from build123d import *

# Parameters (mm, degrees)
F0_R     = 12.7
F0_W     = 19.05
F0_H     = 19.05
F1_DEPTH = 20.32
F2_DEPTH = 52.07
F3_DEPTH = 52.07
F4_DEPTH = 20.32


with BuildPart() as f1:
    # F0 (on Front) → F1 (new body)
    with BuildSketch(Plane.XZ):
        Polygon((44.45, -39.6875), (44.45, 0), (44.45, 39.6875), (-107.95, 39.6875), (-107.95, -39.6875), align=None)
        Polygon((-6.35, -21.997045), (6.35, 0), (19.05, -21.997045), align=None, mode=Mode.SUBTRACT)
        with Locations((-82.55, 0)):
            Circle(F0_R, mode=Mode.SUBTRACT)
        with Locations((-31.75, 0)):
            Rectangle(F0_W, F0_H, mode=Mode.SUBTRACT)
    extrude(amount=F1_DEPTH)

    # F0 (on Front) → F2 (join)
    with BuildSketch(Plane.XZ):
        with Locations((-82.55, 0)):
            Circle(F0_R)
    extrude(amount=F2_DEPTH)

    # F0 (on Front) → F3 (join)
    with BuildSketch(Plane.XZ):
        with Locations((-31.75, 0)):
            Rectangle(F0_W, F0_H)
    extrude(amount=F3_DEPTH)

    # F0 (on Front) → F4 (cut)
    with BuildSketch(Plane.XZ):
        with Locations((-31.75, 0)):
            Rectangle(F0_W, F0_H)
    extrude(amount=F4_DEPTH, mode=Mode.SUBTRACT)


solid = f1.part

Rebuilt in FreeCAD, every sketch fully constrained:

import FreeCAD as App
import Part
import Sketcher
from FreeCAD import Vector
Q = App.Units.Quantity


def add_polygon(sketch, points):
    """Adds a closed chain of lines whose ends are joined by coincident constraints."""
    first, n = sketch.GeometryCount, len(points)
    for a, b in zip(points, points[1:] + points[:1]):
        sketch.addGeometry(Part.LineSegment(App.Vector(*a, 0), App.Vector(*b, 0)), False)
    for i in range(n):
        sketch.addConstraint(Sketcher.Constraint("Coincident", first + i, 2, first + (i + 1) % n, 1))

doc = App.newDocument("Part")
params = doc.addObject("Spreadsheet::Sheet", "Params")
for row, (alias, value) in enumerate([
    ("sketch1_diameter", "1 in"),
    ("sketch1_width", "6 in"),
    ("sketch1_width2", "1 in"),
    ("sketch1_length", "1 in"),
    ("sketch1_width3", "0.75 in"),
    ("pad1_length", "0.8 in"),
    ("sketch2_diameter", "1 in"),
    ("pad2_length", "2.05 in"),
    ("sketch3_width", "0.75 in"),
    ("pad3_length", "2.05 in"),
    ("sketch4_width", "0.75 in"),
    ("pocket1_length", "0.8 in"),
], start=1):
    params.set(f"A{row}", alias)
    params.set(f"B{row}", "=" + value)
    params.setAlias(f"B{row}", alias)

body = doc.addObject("PartDesign::Body", "Body")
body.AllowCompound = True

# Sketch on XZ plane
sketch1 = body.newObject("Sketcher::SketchObject", "Sketch")
sketch1.AttachmentSupport = (doc.getObject("XZ_Plane"), [""])
sketch1.MapMode = "FlatFace"
add_polygon(sketch1, [(44, -40), (44, 40), (-108, 40), (-108, -40)])  # lines 0-3
add_polygon(sketch1, [(19, -22), (-6, -22), (6, 0)])  # lines 4-6
sketch1.addGeometry(Part.Circle(Vector(-83, 0, 0), Vector(0, 0, 1), 13), False)  # 7
add_polygon(sketch1, [(-22, -10), (-41, -10), (-41, 10), (-22, 10)])  # lines 8-11
sketch1.addConstraint([
    Sketcher.Constraint("Vertical", 0),
    Sketcher.Constraint("Horizontal", 1),
    Sketcher.Constraint("Vertical", 2),
    Sketcher.Constraint("Horizontal", 3),
    Sketcher.Constraint("Horizontal", 4),
    Sketcher.Constraint("Horizontal", 8),
    Sketcher.Constraint("Vertical", 9),
    Sketcher.Constraint("Horizontal", 10),
    Sketcher.Constraint("Vertical", 11),
    Sketcher.Constraint("PointOnObject", 7, 3, -1),
    Sketcher.Constraint("PointOnObject", 5, 2, -1),
    Sketcher.Constraint("Equal", 10, 9),
    Sketcher.Constraint("Equal", 5, 6),
    Sketcher.Constraint("Diameter", 7, Q("1 in")),
    Sketcher.Constraint("DistanceX", 1, 2, 1, 1, Q("6 in")),
    Sketcher.Constraint("DistanceX", 4, 2, 4, 1, Q("1 in")),
    Sketcher.Constraint("Distance", 5, Q("1 in")),
    Sketcher.Constraint("DistanceX", 7, 3, 0, 2, Q("5 in")),
    Sketcher.Constraint("DistanceX", 4, 2, 3, 2, Q("2 in")),
    Sketcher.Constraint("DistanceX", 8, 2, 8, 1, Q("0.75 in")),
    Sketcher.Constraint("DistanceY", 0, 1, 0, 2, Q("3.125 in")),
    Sketcher.Constraint("DistanceX", 7, 3, -1, 1, Q("3.25 in")),
    Sketcher.Constraint("DistanceY", -1, 1, 0, 2, Q("1.5625 in")),
    Sketcher.Constraint("DistanceX", 8, 2, -1, 1, Q("1.625 in")),
    Sketcher.Constraint("DistanceY", 8, 2, -1, 1, Q("0.375 in")),
])
sketch1.setExpression("Constraints[24]", "Params.sketch1_diameter")
sketch1.setExpression("Constraints[25]", "Params.sketch1_width")
sketch1.setExpression("Constraints[26]", "Params.sketch1_width2")
sketch1.setExpression("Constraints[27]", "Params.sketch1_length")
sketch1.setExpression("Constraints[30]", "Params.sketch1_width3")
pad1 = body.newObject("PartDesign::Pad", "Pad")
pad1.Profile = sketch1
pad1.setExpression("Length", "Params.pad1_length")

# Sketch on XZ plane
sketch2 = body.newObject("Sketcher::SketchObject", "Sketch001")
sketch2.AttachmentSupport = (doc.getObject("XZ_Plane"), [""])
sketch2.MapMode = "FlatFace"
sketch2.addGeometry(Part.Circle(Vector(-83, 0, 0), Vector(0, 0, 1), 13), False)
sketch2.addConstraint([
    Sketcher.Constraint("PointOnObject", 0, 3, -1),
    Sketcher.Constraint("Diameter", 0, Q("1 in")),
    Sketcher.Constraint("DistanceX", 0, 3, -1, 1, Q("3.25 in")),
])
sketch2.setExpression("Constraints[1]", "Params.sketch2_diameter")
pad2 = body.newObject("PartDesign::Pad", "Pad001")
pad2.Profile = sketch2
pad2.setExpression("Length", "Params.pad2_length")

# Sketch on XZ plane
sketch3 = body.newObject("Sketcher::SketchObject", "Sketch002")
sketch3.AttachmentSupport = (doc.getObject("XZ_Plane"), [""])
sketch3.MapMode = "FlatFace"
add_polygon(sketch3, [(-41, 10), (-41, -10), (-22, -10), (-22, 10)])  # lines 0-3
sketch3.addConstraint([
    Sketcher.Constraint("Vertical", 0),
    Sketcher.Constraint("Horizontal", 1),
    Sketcher.Constraint("Vertical", 2),
    Sketcher.Constraint("Horizontal", 3),
    Sketcher.Constraint("Equal", 3, 0),
    Sketcher.Constraint("DistanceX", 1, 1, 1, 2, Q("0.75 in")),
    Sketcher.Constraint("DistanceX", 0, 2, -1, 1, Q("1.625 in")),
    Sketcher.Constraint("DistanceY", 0, 2, -1, 1, Q("0.375 in")),
])
sketch3.setExpression("Constraints[9]", "Params.sketch3_width")
pad3 = body.newObject("PartDesign::Pad", "Pad002")
pad3.Profile = sketch3
pad3.setExpression("Length", "Params.pad3_length")

# Sketch on XZ plane
sketch4 = body.newObject("Sketcher::SketchObject", "Sketch003")
sketch4.AttachmentSupport = (doc.getObject("XZ_Plane"), [""])
sketch4.MapMode = "FlatFace"
add_polygon(sketch4, [(-41, 10), (-41, -10), (-22, -10), (-22, 10)])  # lines 0-3
sketch4.addConstraint([
    Sketcher.Constraint("Vertical", 0),
    Sketcher.Constraint("Horizontal", 1),
    Sketcher.Constraint("Vertical", 2),
    Sketcher.Constraint("Horizontal", 3),
    Sketcher.Constraint("Equal", 3, 0),
    Sketcher.Constraint("DistanceX", 1, 1, 1, 2, Q("0.75 in")),
    Sketcher.Constraint("DistanceX", 0, 2, -1, 1, Q("1.625 in")),
    Sketcher.Constraint("DistanceY", 0, 2, -1, 1, Q("0.375 in")),
])
sketch4.setExpression("Constraints[9]", "Params.sketch4_width")
pocket1 = body.newObject("PartDesign::Pocket", "Pocket")
pocket1.Profile = sketch4
pocket1.setExpression("Length", "Params.pocket1_length")
pocket1.Reversed = True

doc.recompute()
